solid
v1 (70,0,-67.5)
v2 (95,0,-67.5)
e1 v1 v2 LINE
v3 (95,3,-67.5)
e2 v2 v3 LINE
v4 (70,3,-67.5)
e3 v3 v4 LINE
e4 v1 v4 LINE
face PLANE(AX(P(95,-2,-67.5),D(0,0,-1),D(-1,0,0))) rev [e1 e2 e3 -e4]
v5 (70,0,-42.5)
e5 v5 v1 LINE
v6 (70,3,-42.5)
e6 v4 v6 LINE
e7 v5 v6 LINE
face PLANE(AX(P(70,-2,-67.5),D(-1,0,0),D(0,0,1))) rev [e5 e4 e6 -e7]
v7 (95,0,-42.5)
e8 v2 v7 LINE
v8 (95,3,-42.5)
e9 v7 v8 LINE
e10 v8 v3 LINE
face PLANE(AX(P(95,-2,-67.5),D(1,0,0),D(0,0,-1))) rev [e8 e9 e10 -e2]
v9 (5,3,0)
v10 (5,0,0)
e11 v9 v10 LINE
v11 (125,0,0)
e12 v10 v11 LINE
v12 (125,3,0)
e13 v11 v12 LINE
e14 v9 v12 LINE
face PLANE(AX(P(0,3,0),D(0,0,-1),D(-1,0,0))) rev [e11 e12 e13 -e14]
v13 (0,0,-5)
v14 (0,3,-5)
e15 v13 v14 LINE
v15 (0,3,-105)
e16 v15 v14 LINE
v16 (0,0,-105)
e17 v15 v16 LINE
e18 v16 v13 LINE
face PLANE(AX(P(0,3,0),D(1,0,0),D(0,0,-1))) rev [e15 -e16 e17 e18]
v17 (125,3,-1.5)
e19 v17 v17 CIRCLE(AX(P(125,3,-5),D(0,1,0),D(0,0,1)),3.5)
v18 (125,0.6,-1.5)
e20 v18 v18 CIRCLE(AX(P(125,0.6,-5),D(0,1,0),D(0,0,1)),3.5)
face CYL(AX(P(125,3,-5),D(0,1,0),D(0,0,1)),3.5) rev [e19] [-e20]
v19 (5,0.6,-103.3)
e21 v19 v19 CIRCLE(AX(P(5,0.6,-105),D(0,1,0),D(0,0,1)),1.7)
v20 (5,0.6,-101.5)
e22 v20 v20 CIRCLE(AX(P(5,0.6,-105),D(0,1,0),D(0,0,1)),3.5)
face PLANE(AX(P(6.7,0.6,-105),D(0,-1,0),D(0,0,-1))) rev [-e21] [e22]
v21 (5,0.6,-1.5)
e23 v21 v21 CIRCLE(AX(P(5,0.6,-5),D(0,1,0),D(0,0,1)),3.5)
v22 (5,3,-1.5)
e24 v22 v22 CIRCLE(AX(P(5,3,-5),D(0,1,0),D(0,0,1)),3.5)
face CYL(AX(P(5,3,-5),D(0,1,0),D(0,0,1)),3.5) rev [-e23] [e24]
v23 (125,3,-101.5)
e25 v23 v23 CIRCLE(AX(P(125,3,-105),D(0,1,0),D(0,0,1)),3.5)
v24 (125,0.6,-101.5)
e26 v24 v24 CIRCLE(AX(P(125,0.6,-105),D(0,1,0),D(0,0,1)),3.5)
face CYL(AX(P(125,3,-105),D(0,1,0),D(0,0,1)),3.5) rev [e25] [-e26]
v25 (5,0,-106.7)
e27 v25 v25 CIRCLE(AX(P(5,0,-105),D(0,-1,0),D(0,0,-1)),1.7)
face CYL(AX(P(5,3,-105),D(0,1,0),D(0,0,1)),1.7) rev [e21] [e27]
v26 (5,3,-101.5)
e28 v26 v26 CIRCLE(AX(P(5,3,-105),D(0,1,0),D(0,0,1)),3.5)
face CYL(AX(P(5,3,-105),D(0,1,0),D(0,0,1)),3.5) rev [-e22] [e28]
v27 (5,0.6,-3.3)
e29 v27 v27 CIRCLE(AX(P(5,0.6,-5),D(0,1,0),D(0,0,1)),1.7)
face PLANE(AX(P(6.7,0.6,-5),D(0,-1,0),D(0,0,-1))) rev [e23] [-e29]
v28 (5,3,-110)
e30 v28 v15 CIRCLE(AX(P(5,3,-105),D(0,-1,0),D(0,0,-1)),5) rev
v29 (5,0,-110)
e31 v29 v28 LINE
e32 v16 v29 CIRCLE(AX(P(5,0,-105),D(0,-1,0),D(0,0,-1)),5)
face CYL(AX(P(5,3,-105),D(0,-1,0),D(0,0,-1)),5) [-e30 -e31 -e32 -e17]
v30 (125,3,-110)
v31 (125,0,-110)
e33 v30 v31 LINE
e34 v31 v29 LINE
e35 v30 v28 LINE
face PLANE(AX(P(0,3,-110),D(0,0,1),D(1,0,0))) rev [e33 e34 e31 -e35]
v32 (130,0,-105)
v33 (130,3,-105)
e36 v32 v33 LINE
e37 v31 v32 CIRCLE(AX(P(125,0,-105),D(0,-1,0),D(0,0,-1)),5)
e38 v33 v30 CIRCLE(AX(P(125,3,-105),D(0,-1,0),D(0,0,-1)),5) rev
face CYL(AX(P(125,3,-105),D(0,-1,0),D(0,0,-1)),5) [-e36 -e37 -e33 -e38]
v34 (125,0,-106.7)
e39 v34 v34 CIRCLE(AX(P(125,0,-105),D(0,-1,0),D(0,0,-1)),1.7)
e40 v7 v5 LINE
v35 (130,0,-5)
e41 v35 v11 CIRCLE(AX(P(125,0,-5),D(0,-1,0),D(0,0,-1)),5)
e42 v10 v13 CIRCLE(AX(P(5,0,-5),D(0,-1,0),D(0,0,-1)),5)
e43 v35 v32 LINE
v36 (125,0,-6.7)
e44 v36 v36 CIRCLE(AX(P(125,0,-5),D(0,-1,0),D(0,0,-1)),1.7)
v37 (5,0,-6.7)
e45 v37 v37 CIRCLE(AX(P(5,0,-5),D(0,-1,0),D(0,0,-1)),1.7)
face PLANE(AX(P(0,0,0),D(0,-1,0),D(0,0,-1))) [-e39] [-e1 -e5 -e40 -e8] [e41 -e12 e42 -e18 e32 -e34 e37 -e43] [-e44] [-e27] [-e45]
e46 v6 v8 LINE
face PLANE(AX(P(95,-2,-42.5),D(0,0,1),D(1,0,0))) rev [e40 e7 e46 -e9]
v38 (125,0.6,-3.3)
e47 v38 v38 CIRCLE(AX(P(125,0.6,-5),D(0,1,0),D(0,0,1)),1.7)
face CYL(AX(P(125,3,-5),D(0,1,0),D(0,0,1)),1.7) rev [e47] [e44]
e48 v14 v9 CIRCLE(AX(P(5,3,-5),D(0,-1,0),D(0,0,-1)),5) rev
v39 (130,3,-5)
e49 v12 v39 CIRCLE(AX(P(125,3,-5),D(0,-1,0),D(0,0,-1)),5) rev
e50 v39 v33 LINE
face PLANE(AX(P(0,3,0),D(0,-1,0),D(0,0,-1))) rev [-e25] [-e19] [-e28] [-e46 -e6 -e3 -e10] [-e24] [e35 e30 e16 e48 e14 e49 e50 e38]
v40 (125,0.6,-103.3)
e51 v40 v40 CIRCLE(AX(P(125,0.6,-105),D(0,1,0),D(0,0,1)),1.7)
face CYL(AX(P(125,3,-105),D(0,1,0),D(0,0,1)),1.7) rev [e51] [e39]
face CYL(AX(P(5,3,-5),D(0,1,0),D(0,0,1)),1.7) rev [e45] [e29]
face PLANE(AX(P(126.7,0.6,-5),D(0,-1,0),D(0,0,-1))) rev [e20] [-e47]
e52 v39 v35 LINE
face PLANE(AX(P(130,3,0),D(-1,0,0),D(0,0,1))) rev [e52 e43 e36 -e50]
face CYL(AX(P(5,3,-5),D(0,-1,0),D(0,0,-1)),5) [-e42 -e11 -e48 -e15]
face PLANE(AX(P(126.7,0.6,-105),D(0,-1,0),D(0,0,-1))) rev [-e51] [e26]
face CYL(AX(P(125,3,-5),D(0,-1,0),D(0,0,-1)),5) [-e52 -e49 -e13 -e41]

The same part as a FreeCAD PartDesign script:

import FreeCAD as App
import Part
import Sketcher

V = App.Vector


def edges_at(feature, points):
    """Names of the edges that pass closest to the given points."""
    edges = feature.Shape.Edges
    near = lambda p: min(range(len(edges)), key=lambda i: edges[i].distToShape(Part.Vertex(*p))[0])
    return sorted({f"Edge{near(p) + 1}" for p in points})


def add_polygon(sketch, points):
    """Adds a closed chain of lines whose ends are joined by coincident constraints."""
    first, n = sketch.GeometryCount, len(points)
    for a, b in zip(points, points[1:] + points[:1]):
        sketch.addGeometry(Part.LineSegment(App.Vector(*a, 0), App.Vector(*b, 0)), False)
    for i in range(n):
        sketch.addConstraint(Sketcher.Constraint("Coincident", first + i, 2, first + (i + 1) % n, 1))

doc = App.newDocument("Part")
body = doc.addObject("PartDesign::Body", "Body")

sketch1 = body.newObject("Sketcher::SketchObject", "Sketch")
sketch1.AttachmentSupport = (doc.getObject("XZ_Plane"), [""])
sketch1.MapMode = "FlatFace"
add_polygon(sketch1, [(0, -110), (0, 0), (130, 0), (130, -110)])
sketch1.addConstraint([
    Sketcher.Constraint("Vertical", 0),
    Sketcher.Constraint("Horizontal", 1),
    Sketcher.Constraint("Vertical", 2),
    Sketcher.Constraint("Horizontal", 3),
    Sketcher.Constraint("Coincident", 0, 2, -1, 1),
    Sketcher.Constraint("DistanceX", 1, 1, 1, 2, 130.0),
    Sketcher.Constraint("DistanceY", 0, 1, 0, 2, 110.0),
])
pad1 = body.newObject("PartDesign::Pad", "Pad")
pad1.Profile = sketch1
pad1.Length = 3
pad1.Reversed = True

sketch2 = body.newObject("Sketcher::SketchObject", "Sketch001")
sketch2.AttachmentSupport = (doc.getObject("XZ_Plane"), [""])
sketch2.MapMode = "FlatFace"
sketch2.AttachmentOffset = App.Placement(V(0, 0, -3), App.Rotation())
sketch2.addGeometry([
    Part.Circle(V(5, -105, 0), V(0, 0, 1), 1.7),
    Part.Circle(V(125, -105, 0), V(0, 0, 1), 1.7),
    Part.Circle(V(125, -5, 0), V(0, 0, 1), 1.7),
    Part.Circle(V(5, -5, 0), V(0, 0, 1), 1.7),
], False)
sketch2.addConstraint([
    Sketcher.Constraint("Equal", 0, 1),
    Sketcher.Constraint("Equal", 1, 2),
    Sketcher.Constraint("Equal", 2, 3),
    Sketcher.Constraint("Horizontal", 0, 3, 1, 3),
    Sketcher.Constraint("Horizontal", 2, 3, 3, 3),
    Sketcher.Constraint("Vertical", 1, 3, 2, 3),
    Sketcher.Constraint("Vertical", 0, 3, 3, 3),
    Sketcher.Constraint("Diameter", 0, 3.4),
    Sketcher.Constraint("DistanceX", -1, 1, 0, 3, 5.0),
    Sketcher.Constraint("DistanceY", 0, 3, -1, 1, 105.0),
    Sketcher.Constraint("DistanceX", -1, 1, 1, 3, 125.0),
    Sketcher.Constraint("DistanceY", 2, 3, -1, 1, 5.0),
])
doc.recompute()
hole = body.newObject("PartDesign::Hole", "Hole")
hole.Profile = sketch2
hole.ThreadType = "None"
hole.Diameter = 3.4
hole.DepthType = "Dimension"
hole.Depth = 7
hole.DrillPoint = "Angled"
hole.DrillPointAngle = 118
hole.HoleCutType = "Counterbore"
hole.HoleCutDiameter = 7
hole.HoleCutDepth = 2.4
hole.Reversed = True

sketch3 = body.newObject("Sketcher::SketchObject", "Sketch002")
sketch3.AttachmentSupport = (doc.getObject("XZ_Plane"), [""])
sketch3.MapMode = "FlatFace"
sketch3.AttachmentOffset = App.Placement(V(0, 0, -3), App.Rotation())
add_polygon(sketch3, [(70, -68), (70, -42), (95, -42), (95, -68)])
sketch3.addConstraint([
    Sketcher.Constraint("Vertical", 0),
    Sketcher.Constraint("Horizontal", 1),
    Sketcher.Constraint("Vertical", 2),
    Sketcher.Constraint("Horizontal", 3),
    Sketcher.Constraint("Equal", 3, 0),
    Sketcher.Constraint("DistanceX", 1, 1, 1, 2, 25.0),
    Sketcher.Constraint("DistanceX", -1, 1, 0, 2, 70.0),
    Sketcher.Constraint("DistanceY", 0, 2, -1, 1, 42.5),
])
pocket1 = body.newObject("PartDesign::Pocket", "Pocket")
pocket1.Profile = sketch3
pocket1.Length = 5
pocket1.Reversed = True
doc.recompute()

fillet = body.newObject("PartDesign::Fillet", "Fillet")
fillet.Base = (pocket1, edges_at(pocket1, [
    (0, 1.5, -110),
    (130, 1.5, -110),
    (130, 1.5, 0),
    (0, 1.5, 0),
]))
fillet.Radius = 5

doc.recompute()
